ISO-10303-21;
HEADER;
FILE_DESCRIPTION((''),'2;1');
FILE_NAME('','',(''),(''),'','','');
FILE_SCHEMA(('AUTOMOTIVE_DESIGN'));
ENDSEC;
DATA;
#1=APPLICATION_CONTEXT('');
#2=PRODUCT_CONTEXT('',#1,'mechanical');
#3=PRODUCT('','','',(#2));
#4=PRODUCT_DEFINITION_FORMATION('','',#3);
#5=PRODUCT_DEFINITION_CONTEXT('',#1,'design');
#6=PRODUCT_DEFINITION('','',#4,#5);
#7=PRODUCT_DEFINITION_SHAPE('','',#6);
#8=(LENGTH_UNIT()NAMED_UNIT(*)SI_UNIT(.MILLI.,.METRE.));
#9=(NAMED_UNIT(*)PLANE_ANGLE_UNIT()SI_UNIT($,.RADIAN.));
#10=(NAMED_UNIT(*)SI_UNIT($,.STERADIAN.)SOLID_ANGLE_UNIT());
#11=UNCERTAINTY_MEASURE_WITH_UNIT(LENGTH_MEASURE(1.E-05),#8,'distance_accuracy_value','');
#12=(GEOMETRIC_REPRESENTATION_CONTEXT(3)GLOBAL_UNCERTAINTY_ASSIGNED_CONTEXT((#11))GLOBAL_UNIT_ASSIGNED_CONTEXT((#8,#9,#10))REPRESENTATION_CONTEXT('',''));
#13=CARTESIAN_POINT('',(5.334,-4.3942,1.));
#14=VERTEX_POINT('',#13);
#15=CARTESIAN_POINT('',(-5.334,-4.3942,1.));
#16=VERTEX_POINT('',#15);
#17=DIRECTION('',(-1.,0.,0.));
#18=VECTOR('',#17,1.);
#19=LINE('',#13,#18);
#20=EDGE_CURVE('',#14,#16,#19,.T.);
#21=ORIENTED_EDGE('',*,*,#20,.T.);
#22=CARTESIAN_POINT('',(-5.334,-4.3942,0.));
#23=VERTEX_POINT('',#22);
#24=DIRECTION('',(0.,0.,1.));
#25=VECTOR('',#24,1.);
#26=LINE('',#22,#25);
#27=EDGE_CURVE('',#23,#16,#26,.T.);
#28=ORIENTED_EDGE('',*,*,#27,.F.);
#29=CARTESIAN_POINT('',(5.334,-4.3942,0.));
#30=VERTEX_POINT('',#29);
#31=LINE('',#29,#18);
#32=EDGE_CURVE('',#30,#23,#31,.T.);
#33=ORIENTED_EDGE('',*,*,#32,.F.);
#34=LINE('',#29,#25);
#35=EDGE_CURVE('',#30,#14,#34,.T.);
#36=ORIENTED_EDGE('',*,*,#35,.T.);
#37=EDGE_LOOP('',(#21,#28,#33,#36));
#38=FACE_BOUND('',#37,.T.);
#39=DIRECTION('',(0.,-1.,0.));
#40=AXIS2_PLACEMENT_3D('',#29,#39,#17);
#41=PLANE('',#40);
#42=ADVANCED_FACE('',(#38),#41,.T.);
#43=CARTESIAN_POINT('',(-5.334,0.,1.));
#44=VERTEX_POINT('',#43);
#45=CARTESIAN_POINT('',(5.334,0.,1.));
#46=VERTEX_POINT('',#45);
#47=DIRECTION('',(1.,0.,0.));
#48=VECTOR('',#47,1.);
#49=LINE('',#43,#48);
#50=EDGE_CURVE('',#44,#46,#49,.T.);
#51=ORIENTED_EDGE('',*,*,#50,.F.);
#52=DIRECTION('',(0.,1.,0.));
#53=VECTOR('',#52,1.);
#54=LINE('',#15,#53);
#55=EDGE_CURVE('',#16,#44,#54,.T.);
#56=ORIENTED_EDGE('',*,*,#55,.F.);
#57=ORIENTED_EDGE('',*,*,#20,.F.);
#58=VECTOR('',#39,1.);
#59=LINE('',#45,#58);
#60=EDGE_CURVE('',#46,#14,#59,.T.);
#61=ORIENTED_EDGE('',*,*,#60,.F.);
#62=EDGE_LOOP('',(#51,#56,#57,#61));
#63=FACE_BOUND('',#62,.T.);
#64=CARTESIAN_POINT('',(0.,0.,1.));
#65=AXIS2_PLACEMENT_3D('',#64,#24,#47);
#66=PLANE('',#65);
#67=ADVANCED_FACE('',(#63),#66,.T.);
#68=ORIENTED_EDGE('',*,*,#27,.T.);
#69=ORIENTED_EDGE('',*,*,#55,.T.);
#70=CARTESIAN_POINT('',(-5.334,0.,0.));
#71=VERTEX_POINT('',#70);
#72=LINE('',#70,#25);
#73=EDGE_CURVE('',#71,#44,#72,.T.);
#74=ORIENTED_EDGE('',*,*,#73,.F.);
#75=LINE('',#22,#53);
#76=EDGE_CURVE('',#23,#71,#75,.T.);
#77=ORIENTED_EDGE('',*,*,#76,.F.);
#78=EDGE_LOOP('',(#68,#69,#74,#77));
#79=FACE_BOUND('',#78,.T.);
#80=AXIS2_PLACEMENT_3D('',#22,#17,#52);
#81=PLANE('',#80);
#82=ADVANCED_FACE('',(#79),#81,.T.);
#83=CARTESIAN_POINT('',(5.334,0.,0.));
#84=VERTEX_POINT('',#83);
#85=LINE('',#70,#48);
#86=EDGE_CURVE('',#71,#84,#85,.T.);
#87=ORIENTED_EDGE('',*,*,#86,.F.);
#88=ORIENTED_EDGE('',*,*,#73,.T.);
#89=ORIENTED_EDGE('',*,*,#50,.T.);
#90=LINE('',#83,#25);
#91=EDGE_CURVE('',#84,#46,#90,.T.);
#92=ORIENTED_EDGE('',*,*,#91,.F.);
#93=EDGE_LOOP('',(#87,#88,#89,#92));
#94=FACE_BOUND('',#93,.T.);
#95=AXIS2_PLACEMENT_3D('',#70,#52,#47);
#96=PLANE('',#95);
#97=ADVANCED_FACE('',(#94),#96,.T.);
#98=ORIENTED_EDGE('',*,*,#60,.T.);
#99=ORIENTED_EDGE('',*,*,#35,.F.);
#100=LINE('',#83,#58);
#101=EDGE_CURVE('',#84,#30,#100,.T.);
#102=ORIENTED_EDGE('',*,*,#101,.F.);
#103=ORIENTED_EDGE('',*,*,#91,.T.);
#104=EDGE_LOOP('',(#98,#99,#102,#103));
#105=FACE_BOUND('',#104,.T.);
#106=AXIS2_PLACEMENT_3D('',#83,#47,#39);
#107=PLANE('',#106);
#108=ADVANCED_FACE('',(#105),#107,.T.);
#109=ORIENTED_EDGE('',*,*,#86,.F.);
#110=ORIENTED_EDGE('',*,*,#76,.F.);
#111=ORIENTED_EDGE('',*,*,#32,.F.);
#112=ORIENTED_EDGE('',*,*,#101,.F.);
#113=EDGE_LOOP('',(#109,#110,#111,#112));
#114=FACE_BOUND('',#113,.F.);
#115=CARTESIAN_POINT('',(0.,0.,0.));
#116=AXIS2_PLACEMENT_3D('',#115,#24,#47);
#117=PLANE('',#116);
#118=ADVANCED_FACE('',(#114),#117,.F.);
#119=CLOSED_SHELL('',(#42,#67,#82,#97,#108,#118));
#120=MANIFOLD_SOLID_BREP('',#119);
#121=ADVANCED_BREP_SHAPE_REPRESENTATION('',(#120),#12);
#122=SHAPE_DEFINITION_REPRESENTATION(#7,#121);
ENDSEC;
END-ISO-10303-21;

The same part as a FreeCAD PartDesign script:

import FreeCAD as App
import Part
import Sketcher

V = App.Vector
Q = App.Units.Quantity

doc = App.newDocument("Part")
body = doc.addObject("PartDesign::Body", "Body")

# Sketch on XY plane
sketch1 = doc.addObject("Sketcher::SketchObject", "Sketch")
body.addObject(sketch1)
sketch1.AttachmentSupport = (doc.XY_Plane, [""])
sketch1.MapMode = "FlatFace"
sketch1.addGeometry([
    Part.LineSegment(V(5.3, 0, 0), V(-5.3, 0, 0)),
    Part.LineSegment(V(-5.3, 0, 0), V(-5.3, -4.4, 0)),
    Part.LineSegment(V(-5.3, -4.4, 0), V(5.3, -4.4, 0)),
    Part.LineSegment(V(5.3, -4.4, 0), V(5.3, 0, 0)),
], False)
sketch1.addConstraint([
    Sketcher.Constraint("Coincident", 0, 2, 1, 1),
    Sketcher.Constraint("Coincident", 1, 2, 2, 1),
    Sketcher.Constraint("Coincident", 2, 2, 3, 1),
    Sketcher.Constraint("Coincident", 3, 2, 0, 1),
    Sketcher.Constraint("Horizontal", 0),
    Sketcher.Constraint("Vertical", 1),
    Sketcher.Constraint("Horizontal", 2),
    Sketcher.Constraint("Vertical", 3),
    Sketcher.Constraint("Symmetric", 0, 2, 3, 2, -1, 1),
    Sketcher.Constraint("DistanceX", 0, 2, 0, 1, Q("0.42 in")),
    Sketcher.Constraint("DistanceY", 1, 2, 1, 1, Q("0.173 in")),
])
pad1 = doc.addObject("PartDesign::Pad", "Pad")
body.addObject(pad1)
pad1.Profile = sketch1
pad1.Length = 1

doc.recompute()
